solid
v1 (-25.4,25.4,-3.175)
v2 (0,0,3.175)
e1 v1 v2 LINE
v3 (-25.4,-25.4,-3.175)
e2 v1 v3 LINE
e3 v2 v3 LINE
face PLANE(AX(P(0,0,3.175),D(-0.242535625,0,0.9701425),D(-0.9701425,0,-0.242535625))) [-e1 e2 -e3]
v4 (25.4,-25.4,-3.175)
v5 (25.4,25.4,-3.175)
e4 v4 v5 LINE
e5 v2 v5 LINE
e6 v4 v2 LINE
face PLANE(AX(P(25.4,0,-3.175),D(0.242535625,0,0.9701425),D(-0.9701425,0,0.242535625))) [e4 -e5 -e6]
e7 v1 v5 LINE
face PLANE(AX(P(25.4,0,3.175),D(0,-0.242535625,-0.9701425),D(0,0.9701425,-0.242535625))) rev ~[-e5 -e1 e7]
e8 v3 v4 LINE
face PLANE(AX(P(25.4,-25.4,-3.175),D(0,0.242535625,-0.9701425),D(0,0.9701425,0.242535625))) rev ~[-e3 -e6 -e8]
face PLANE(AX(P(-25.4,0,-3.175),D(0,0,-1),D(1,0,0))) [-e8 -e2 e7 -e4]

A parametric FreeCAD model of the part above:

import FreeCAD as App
import Part
import Sketcher

V = App.Vector
Q = App.Units.Quantity


def add_polygon(sketch, points):
    """Adds a closed chain of lines whose ends are joined by coincident constraints."""
    first, n = sketch.GeometryCount, len(points)
    for a, b in zip(points, points[1:] + points[:1]):
        sketch.addGeometry(Part.LineSegment(App.Vector(*a, 0), App.Vector(*b, 0)), False)
    for i in range(n):
        sketch.addConstraint(Sketcher.Constraint("Coincident", first + i, 2, first + (i + 1) % n, 1))

doc = App.newDocument("Part")
params = doc.addObject("Spreadsheet::Sheet", "Params")
for row, (alias, value) in enumerate([
    ("sketch1_width", "2 in"),
    ("pad1_length", "2 in"),
    ("sketch2_width", "1 in"),
    ("sketch2_height", "0.25 in"),
], start=1):
    params.set(f"A{row}", alias)
    params.set(f"B{row}", "=" + value)
    params.setAlias(f"B{row}", alias)

body = doc.addObject("PartDesign::Body", "Body")

# Sketch on XZ plane
sketch1 = body.newObject("Sketcher::SketchObject", "Sketch")
sketch1.AttachmentSupport = (doc.getObject("XZ_Plane"), [""])
sketch1.MapMode = "FlatFace"
add_polygon(sketch1, [(0, 3), (-25, -3), (25, -3)])  # lines 0-2
sketch1.addConstraint(Sketcher.Constraint("Horizontal", 1))
sketch1.addConstraint(Sketcher.Constraint("PointOnObject", 2, 2, -2))
sketch1.addConstraint(Sketcher.Constraint("Equal", 0, 2))
sketch1.addConstraint(Sketcher.Constraint("DistanceX", 1, 1, 1, 2, Q("2 in")))
sketch1.addConstraint(Sketcher.Constraint("DistanceY", 0, 2, 2, 2, Q("0.25 in")))
sketch1.addConstraint(Sketcher.Constraint("DistanceY", 0, 2, -1, 1, Q("0.125 in")))
sketch1.setExpression("Constraints[6]", "Params.sketch1_width")
pad1 = body.newObject("PartDesign::Pad", "Pad")
pad1.Profile = sketch1
pad1.setExpression("Length", "Params.pad1_length")
pad1.Midplane = True

# Sketch on YZ plane
sketch2 = body.newObject("Sketcher::SketchObject", "Sketch001")
sketch2.AttachmentSupport = (doc.getObject("YZ_Plane"), [""])
sketch2.MapMode = "FlatFace"
sketch2.AttachmentOffset = App.Placement(V(0, 0, 1 * 25.4), App.Rotation())
add_polygon(sketch2, [(0, 3), (-25, 3), (-25, -3)])  # lines 0-2
add_polygon(sketch2, [(25, 3), (0, 3), (25, -3)])  # lines 3-5
sketch2.addConstraint(Sketcher.Constraint("Horizontal", 0))
sketch2.addConstraint(Sketcher.Constraint("Vertical", 1))
sketch2.addConstraint(Sketcher.Constraint("Horizontal", 3))
sketch2.addConstraint(Sketcher.Constraint("Vertical", 5))
sketch2.addConstraint(Sketcher.Constraint("Coincident", 3, 2, 2, 2))
sketch2.addConstraint(Sketcher.Constraint("Symmetric", 0, 2, 4, 2, -1, 1))
sketch2.addConstraint(Sketcher.Constraint("PointOnObject", 2, 2, -2))
sketch2.addConstraint(Sketcher.Constraint("Horizontal", 1, 2, 4, 2))
sketch2.addConstraint(Sketcher.Constraint("DistanceX", 0, 2, 0, 1, Q("1 in")))
sketch2.addConstraint(Sketcher.Constraint("DistanceY", 1, 2, 1, 1, Q("0.25 in")))
sketch2.setExpression("Constraints[14]", "Params.sketch2_width")
sketch2.setExpression("Constraints[15]", "Params.sketch2_height")
pocket1 = body.newObject("PartDesign::Pocket", "Pocket")
pocket1.Profile = sketch2
pocket1.Type = "ThroughAll"

doc.recompute()
